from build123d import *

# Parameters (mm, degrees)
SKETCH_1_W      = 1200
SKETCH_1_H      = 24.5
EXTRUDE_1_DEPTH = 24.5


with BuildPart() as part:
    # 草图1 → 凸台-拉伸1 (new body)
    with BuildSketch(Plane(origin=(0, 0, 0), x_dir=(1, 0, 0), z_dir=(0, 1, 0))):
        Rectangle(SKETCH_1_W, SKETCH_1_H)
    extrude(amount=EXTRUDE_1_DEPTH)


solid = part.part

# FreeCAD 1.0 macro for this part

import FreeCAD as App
import Part
import Sketcher
Q = App.Units.Quantity


def add_polygon(sketch, points):
    """Adds a closed chain of lines whose ends are joined by coincident constraints."""
    first, n = sketch.GeometryCount, len(points)
    for a, b in zip(points, points[1:] + points[:1]):
        sketch.addGeometry(Part.LineSegment(App.Vector(*a, 0), App.Vector(*b, 0)), False)
    for i in range(n):
        sketch.addConstraint(Sketcher.Constraint("Coincident", first + i, 2, first + (i + 1) % n, 1))

doc = App.newDocument("Part")
body = doc.addObject("PartDesign::Body", "Body")

# Sketch on XZ plane
sketch1 = body.newObject("Sketcher::SketchObject", "Sketch")
sketch1.AttachmentSupport = (doc.getObject("XZ_Plane"), [""])
sketch1.MapMode = "FlatFace"
add_polygon(sketch1, [(-600, -12), (-600, 12), (600, 12), (600, -12)])  # lines 0-3
sketch1.addConstraint([
    Sketcher.Constraint("Vertical", 0),
    Sketcher.Constraint("Horizontal", 1),
    Sketcher.Constraint("Vertical", 2),
    Sketcher.Constraint("Horizontal", 3),
    Sketcher.Constraint("Symmetric", 0, 2, 2, 2, -1, 1),
    Sketcher.Constraint("DistanceX", 1, 1, 1, 2, Q("1200 mm")),
    Sketcher.Constraint("DistanceY", 0, 1, 0, 2, Q("24.5 mm")),
])
pad1 = body.newObject("PartDesign::Pad", "Pad")
pad1.Profile = sketch1
pad1.Length = 24.5
pad1.Reversed = True

doc.recompute()
